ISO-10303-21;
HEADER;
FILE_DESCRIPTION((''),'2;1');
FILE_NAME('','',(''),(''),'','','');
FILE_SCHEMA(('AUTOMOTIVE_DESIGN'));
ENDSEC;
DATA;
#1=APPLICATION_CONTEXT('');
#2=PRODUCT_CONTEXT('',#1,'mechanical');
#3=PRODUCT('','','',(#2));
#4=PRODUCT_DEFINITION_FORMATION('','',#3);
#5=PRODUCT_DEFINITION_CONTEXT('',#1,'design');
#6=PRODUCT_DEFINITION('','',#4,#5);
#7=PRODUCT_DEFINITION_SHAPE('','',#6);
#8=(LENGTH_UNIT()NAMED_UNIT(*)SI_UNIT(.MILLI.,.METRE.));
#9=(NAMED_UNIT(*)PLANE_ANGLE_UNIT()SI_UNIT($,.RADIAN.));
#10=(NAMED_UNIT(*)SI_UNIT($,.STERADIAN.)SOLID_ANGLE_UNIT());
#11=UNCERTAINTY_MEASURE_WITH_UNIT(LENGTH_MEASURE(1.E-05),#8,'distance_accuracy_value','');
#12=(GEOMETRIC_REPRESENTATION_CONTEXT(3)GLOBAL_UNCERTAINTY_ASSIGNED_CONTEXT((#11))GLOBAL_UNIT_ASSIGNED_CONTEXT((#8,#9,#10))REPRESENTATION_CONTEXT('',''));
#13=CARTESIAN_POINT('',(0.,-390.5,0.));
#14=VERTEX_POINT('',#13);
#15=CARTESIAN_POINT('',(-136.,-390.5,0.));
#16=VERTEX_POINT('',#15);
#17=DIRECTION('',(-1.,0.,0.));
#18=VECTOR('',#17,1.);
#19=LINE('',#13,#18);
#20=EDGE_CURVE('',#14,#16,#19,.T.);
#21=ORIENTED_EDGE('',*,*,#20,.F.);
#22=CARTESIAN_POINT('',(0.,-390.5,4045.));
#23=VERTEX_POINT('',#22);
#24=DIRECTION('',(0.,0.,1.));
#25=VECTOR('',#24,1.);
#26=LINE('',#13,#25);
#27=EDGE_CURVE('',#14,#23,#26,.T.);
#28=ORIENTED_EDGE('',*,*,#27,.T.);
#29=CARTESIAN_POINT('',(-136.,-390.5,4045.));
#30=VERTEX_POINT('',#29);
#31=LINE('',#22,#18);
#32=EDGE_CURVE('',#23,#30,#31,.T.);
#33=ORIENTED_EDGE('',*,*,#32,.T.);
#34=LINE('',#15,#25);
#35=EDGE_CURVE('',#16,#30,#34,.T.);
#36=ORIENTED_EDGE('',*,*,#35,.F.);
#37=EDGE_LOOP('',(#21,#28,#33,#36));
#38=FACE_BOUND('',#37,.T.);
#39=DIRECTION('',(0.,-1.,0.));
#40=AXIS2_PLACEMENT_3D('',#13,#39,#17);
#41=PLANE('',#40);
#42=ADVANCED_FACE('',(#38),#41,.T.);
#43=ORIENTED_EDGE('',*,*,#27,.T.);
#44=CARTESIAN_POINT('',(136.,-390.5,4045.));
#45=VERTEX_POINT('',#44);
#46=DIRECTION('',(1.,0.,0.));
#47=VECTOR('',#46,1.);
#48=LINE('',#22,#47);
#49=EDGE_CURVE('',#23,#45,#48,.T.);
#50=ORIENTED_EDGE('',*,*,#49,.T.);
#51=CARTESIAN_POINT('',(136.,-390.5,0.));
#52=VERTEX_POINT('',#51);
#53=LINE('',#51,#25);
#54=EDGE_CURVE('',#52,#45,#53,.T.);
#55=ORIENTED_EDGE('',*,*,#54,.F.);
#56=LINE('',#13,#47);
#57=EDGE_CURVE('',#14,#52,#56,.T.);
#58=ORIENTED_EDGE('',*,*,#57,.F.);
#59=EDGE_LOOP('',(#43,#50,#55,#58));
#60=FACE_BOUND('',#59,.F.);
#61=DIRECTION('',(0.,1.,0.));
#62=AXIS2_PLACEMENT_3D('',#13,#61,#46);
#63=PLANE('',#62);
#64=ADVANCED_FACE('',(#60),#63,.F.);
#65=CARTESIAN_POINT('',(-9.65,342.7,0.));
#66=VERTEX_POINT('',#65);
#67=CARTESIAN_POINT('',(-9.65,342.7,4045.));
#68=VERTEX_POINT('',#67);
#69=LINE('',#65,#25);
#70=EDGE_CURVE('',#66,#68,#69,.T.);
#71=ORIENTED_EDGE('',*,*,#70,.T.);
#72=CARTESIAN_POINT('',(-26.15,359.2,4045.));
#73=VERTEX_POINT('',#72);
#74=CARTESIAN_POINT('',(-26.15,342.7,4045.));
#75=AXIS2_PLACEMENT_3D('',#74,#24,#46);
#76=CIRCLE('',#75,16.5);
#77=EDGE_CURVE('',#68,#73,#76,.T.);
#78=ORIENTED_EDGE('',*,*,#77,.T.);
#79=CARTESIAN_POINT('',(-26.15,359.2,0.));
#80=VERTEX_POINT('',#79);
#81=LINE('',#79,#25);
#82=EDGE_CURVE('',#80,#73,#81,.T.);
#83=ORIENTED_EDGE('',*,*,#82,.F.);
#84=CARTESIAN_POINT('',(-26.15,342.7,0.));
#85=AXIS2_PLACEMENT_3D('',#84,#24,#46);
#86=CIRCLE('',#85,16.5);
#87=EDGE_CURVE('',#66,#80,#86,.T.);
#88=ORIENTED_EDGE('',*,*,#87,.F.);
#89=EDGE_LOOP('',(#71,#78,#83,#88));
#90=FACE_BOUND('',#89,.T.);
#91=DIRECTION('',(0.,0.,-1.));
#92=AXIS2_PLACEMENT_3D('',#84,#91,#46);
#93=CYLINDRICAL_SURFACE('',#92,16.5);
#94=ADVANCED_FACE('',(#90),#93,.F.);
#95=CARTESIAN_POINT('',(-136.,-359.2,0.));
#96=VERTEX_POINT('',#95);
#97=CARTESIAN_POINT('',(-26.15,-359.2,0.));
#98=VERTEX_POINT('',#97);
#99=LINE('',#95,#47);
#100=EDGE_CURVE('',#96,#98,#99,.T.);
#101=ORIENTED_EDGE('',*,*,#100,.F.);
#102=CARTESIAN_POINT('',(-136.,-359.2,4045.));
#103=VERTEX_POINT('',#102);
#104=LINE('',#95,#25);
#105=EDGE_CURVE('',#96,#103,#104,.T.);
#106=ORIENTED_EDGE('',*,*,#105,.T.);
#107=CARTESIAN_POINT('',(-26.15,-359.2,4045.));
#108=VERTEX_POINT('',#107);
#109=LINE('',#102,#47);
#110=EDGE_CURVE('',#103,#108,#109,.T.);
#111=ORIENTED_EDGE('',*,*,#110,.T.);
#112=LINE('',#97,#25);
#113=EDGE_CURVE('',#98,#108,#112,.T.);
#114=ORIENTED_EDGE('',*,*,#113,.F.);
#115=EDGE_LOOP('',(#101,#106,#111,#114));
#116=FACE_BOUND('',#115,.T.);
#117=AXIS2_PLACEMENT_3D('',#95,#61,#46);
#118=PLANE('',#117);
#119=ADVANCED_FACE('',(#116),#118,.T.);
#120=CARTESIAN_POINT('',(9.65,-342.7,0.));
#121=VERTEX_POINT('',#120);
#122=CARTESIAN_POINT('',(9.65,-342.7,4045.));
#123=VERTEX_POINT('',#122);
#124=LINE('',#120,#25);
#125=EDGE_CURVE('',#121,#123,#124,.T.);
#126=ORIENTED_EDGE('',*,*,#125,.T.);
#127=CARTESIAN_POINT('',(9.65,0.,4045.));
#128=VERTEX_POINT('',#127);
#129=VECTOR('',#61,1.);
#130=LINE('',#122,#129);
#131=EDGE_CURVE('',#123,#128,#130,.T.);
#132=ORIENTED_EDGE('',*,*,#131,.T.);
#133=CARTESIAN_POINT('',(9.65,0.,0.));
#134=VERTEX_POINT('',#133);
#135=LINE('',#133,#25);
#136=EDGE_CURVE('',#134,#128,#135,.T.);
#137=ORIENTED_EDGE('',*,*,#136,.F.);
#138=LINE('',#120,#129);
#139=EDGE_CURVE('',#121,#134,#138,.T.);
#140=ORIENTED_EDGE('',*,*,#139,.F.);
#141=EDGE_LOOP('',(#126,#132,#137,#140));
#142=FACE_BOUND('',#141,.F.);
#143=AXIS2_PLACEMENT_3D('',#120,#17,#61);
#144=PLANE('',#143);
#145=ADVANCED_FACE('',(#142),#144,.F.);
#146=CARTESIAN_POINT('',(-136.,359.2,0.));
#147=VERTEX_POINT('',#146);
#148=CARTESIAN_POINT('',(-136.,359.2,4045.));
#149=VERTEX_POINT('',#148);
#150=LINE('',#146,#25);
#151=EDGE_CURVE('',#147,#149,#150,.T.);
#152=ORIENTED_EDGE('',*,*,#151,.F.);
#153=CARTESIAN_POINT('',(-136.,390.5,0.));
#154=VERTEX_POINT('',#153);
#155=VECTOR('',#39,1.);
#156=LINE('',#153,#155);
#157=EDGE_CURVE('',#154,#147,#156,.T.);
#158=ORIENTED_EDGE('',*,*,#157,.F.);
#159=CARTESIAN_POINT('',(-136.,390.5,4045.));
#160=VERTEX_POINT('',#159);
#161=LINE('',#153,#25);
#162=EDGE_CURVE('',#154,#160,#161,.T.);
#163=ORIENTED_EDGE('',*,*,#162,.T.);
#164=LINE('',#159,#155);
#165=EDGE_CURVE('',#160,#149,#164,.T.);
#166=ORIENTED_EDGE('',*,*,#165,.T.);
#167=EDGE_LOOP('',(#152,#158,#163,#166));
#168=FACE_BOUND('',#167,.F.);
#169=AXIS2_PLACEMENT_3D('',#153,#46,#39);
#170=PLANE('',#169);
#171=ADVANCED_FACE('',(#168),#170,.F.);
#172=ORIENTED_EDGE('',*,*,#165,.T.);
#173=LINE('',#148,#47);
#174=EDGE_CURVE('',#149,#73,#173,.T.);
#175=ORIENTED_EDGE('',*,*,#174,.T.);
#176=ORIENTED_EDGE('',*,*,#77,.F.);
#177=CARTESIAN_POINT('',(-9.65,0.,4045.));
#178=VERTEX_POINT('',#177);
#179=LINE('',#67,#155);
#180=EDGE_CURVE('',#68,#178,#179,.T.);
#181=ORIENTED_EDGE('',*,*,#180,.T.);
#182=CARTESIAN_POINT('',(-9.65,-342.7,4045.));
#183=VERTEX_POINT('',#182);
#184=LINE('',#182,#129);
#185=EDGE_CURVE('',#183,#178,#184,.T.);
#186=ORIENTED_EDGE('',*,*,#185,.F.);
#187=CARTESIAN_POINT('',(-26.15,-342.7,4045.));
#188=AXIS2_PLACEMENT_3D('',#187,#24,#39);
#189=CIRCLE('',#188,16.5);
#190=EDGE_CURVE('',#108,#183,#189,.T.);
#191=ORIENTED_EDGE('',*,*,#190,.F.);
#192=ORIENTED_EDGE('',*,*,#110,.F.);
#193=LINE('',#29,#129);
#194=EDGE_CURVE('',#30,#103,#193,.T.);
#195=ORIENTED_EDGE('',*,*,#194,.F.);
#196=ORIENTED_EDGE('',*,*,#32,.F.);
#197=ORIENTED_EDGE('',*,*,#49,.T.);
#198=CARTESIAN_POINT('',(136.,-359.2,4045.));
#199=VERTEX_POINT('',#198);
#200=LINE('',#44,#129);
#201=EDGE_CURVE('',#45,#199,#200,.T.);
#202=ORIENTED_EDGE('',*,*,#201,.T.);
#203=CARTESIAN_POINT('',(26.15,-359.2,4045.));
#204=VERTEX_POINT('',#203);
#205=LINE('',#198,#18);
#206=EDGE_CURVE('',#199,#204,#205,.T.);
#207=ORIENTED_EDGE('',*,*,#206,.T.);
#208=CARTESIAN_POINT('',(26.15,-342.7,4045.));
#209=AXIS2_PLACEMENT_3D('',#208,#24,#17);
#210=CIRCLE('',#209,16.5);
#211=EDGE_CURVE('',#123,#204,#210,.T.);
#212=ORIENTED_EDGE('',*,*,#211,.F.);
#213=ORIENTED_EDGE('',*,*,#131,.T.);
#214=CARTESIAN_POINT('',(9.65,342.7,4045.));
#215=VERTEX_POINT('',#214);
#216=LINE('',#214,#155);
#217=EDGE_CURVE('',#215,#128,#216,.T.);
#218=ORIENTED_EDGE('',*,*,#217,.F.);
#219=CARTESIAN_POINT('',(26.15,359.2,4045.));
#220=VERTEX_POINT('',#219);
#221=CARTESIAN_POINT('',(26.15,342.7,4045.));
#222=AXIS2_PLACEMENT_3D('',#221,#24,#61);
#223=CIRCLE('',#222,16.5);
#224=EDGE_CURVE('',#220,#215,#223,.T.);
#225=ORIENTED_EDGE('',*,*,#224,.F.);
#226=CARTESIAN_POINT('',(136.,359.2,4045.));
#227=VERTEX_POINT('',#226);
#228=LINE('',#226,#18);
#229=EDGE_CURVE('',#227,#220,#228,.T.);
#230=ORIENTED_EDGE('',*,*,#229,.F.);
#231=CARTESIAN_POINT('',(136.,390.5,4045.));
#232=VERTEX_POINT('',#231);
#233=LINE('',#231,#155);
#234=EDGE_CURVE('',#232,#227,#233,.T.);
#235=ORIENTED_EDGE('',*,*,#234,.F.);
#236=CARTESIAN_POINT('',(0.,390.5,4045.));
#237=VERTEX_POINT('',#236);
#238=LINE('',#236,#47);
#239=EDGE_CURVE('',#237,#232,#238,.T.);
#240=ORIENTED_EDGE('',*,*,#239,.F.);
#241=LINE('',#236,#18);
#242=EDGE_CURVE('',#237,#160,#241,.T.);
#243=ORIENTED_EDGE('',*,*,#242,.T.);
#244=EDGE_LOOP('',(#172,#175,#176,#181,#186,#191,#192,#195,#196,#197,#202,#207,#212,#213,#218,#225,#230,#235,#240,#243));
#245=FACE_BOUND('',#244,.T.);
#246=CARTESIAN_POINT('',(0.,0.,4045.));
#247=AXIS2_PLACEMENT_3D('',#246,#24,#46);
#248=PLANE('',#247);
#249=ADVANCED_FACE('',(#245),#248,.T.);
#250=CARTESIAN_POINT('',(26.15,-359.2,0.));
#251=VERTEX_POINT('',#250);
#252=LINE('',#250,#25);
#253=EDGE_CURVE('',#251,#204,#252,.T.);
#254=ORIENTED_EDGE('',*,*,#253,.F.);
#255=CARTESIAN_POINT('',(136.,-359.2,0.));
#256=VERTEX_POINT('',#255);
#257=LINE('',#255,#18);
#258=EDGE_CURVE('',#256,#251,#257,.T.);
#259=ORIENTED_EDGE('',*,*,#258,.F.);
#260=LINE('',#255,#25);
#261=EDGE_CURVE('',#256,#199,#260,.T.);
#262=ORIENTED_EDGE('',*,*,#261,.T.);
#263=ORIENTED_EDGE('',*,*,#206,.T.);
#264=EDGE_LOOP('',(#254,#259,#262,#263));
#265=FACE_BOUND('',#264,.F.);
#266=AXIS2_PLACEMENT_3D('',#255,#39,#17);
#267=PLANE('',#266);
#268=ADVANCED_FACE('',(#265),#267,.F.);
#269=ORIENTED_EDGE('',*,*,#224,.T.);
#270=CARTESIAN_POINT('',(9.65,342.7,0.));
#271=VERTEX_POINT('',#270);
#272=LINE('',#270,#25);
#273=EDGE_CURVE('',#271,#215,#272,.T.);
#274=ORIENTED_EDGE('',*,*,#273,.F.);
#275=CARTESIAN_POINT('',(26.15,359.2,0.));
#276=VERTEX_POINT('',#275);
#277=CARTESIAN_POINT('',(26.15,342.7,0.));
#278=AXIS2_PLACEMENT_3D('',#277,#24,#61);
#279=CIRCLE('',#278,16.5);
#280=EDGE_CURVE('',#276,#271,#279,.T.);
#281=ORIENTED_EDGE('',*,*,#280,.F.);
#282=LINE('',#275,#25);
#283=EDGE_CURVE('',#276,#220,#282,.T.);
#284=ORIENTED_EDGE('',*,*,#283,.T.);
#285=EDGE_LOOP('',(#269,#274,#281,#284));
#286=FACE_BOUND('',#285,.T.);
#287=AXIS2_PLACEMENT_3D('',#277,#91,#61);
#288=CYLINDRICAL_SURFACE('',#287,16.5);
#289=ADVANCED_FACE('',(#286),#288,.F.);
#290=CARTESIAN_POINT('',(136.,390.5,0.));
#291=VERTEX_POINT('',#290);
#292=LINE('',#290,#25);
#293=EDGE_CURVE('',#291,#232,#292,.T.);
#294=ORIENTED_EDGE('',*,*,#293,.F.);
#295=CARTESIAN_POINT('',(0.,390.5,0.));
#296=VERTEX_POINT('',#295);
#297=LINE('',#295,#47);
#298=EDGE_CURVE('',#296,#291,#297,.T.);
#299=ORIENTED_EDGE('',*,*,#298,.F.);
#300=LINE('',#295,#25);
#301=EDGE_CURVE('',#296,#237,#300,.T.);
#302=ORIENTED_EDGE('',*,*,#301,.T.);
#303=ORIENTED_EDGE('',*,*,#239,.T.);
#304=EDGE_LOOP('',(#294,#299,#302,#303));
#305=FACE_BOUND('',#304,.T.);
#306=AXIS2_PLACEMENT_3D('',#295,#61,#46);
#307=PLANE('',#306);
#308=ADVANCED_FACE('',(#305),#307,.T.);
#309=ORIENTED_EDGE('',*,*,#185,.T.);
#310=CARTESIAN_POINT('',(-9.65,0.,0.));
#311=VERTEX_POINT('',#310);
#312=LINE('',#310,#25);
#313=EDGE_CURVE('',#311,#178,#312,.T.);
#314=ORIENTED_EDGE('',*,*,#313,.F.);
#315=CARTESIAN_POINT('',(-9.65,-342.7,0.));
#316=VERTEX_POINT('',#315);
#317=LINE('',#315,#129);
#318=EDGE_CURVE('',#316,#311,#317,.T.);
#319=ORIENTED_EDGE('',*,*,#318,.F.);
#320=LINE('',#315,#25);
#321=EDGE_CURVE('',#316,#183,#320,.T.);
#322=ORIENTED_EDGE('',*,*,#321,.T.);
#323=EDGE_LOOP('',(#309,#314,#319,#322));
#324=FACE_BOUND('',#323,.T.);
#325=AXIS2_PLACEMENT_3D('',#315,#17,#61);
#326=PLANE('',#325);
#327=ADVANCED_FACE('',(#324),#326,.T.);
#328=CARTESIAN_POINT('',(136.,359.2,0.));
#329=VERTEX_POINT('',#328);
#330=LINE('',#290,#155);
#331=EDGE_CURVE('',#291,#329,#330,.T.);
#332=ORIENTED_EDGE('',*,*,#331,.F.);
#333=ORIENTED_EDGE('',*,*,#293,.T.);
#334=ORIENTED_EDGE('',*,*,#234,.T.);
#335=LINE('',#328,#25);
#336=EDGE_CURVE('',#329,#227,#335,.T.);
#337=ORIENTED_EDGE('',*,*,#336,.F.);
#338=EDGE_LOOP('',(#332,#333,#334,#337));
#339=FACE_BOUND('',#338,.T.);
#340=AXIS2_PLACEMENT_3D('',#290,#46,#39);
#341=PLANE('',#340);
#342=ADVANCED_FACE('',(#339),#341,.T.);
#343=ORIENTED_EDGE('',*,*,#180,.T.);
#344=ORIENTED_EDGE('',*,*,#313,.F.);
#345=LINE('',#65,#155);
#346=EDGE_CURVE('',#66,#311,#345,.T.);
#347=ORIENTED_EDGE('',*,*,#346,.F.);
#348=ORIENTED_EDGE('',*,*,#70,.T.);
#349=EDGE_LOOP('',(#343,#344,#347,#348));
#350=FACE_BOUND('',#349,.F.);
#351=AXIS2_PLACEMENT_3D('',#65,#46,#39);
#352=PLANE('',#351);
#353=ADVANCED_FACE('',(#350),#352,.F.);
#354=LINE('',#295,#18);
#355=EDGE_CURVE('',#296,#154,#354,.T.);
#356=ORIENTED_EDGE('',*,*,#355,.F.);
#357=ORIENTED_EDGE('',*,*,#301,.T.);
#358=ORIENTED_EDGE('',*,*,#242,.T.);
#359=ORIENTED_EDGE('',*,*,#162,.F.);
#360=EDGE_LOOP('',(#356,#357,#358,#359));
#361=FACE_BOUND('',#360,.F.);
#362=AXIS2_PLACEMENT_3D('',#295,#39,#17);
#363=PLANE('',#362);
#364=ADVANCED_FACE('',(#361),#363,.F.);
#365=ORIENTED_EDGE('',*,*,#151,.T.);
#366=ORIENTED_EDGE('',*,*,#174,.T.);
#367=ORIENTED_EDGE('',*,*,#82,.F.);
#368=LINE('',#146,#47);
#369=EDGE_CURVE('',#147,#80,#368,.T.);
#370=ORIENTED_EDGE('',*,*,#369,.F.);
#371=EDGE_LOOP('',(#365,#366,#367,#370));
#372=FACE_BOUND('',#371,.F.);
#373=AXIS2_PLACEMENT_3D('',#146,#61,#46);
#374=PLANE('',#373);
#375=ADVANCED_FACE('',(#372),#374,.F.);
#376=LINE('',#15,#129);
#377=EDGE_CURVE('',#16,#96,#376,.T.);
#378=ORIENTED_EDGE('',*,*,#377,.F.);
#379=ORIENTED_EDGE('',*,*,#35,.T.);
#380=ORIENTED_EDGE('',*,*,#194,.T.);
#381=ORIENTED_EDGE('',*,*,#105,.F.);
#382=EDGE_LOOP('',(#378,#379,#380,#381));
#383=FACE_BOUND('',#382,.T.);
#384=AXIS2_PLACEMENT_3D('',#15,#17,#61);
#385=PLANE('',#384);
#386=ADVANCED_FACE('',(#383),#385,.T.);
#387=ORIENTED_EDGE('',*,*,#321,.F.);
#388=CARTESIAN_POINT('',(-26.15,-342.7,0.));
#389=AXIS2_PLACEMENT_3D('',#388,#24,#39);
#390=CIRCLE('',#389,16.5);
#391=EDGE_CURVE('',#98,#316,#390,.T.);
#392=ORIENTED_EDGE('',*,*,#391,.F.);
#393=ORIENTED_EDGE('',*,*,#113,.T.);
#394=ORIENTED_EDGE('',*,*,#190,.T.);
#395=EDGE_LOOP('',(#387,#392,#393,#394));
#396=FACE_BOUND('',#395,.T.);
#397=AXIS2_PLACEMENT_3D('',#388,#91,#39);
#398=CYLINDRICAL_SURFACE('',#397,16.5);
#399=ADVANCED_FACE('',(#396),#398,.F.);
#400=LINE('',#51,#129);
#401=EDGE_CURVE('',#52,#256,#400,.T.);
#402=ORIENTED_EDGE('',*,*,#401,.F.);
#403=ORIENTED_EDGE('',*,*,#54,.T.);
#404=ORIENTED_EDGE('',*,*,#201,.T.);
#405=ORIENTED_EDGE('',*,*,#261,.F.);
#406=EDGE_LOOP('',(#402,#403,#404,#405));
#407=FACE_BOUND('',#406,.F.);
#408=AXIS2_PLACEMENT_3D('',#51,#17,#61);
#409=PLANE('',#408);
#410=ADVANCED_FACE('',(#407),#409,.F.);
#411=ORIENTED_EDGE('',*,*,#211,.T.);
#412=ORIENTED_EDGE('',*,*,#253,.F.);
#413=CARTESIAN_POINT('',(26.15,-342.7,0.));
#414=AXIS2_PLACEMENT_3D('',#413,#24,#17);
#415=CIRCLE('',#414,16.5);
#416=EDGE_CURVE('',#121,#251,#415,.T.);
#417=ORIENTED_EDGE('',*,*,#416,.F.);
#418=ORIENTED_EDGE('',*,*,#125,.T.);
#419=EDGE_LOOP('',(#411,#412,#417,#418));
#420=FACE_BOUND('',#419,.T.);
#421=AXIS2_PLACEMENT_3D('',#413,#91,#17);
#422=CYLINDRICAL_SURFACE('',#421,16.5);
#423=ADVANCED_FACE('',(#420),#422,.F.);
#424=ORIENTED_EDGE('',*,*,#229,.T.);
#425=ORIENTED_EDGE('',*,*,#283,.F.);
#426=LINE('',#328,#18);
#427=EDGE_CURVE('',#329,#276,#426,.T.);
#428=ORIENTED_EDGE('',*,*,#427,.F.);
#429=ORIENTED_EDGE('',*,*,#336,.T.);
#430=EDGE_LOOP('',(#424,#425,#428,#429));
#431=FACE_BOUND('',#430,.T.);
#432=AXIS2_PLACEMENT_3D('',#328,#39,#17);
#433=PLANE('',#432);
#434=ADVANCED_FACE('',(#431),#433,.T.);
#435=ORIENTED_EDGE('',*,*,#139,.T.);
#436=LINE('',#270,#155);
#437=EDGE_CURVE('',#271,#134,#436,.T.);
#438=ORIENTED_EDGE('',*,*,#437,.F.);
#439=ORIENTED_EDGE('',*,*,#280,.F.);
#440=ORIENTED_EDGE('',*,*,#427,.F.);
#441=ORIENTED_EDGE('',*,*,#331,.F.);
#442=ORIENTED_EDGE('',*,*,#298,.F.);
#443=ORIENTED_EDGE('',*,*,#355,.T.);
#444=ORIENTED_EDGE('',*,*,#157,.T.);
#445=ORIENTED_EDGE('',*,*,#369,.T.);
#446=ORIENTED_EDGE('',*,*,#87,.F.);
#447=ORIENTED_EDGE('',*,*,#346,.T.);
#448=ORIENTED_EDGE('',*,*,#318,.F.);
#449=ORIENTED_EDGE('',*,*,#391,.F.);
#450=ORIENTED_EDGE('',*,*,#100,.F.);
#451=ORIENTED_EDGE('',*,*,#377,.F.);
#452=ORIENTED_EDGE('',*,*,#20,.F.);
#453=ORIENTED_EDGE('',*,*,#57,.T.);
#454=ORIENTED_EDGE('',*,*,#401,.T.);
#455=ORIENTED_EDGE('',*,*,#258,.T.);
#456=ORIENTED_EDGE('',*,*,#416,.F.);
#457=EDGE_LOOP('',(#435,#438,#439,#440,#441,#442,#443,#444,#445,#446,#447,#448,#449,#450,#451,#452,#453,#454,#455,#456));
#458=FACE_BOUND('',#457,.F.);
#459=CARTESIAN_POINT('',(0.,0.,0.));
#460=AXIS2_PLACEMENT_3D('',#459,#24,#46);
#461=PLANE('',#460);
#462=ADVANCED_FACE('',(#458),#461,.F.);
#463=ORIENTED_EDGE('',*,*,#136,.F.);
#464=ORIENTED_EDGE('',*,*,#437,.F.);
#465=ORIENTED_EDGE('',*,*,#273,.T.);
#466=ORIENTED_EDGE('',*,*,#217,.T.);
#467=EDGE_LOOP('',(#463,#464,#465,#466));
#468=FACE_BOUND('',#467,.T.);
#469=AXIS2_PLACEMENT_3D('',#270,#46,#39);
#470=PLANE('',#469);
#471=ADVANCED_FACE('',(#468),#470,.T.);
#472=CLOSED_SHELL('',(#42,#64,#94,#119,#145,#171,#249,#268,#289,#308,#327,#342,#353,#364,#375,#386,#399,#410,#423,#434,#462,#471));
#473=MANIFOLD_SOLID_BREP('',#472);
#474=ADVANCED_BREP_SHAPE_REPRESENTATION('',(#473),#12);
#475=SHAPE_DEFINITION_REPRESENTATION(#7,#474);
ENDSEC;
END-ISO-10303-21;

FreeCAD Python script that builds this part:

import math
import FreeCAD as App
import Part
import Sketcher
Q = App.Units.Quantity

doc = App.newDocument("Part")
body = doc.addObject("PartDesign::Body", "Body")

sketch1 = body.newObject("Sketcher::SketchObject", "Sketch")
sketch1.AttachmentSupport = (doc.getObject("XY_Plane"), [""])
sketch1.MapMode = "FlatFace"
sketch1.addGeometry(Part.LineSegment(App.Vector(-136, -359, 0), App.Vector(-136, -390, 0)), False)
sketch1.addGeometry(Part.LineSegment(App.Vector(-136, -390, 0), App.Vector(136, -390, 0)), False)
sketch1.addGeometry(Part.LineSegment(App.Vector(136, -390, 0), App.Vector(136, -359, 0)), False)
sketch1.addGeometry(Part.LineSegment(App.Vector(136, -359, 0), App.Vector(26, -359, 0)), False)
sketch1.addGeometry(Part.ArcOfCircle(Part.Circle(App.Vector(26, -343, 0), App.Vector(0, 0, 1), 16), math.radians(180), math.radians(270)), False)
sketch1.addGeometry(Part.LineSegment(App.Vector(10, -343, 0), App.Vector(10, 343, 0)), False)
sketch1.addGeometry(Part.ArcOfCircle(Part.Circle(App.Vector(26, 343, 0), App.Vector(0, 0, 1), 16), math.radians(90), math.radians(180)), False)
sketch1.addGeometry(Part.LineSegment(App.Vector(26, 359, 0), App.Vector(136, 359, 0)), False)
sketch1.addGeometry(Part.LineSegment(App.Vector(136, 359, 0), App.Vector(136, 390, 0)), False)
sketch1.addGeometry(Part.LineSegment(App.Vector(136, 390, 0), App.Vector(-136, 390, 0)), False)
sketch1.addGeometry(Part.LineSegment(App.Vector(-136, 390, 0), App.Vector(-136, 359, 0)), False)
sketch1.addGeometry(Part.LineSegment(App.Vector(-136, 359, 0), App.Vector(-26, 359, 0)), False)
sketch1.addGeometry(Part.ArcOfCircle(Part.Circle(App.Vector(-26, 343, 0), App.Vector(0, 0, 1), 16), math.radians(0), math.radians(90)), False)
sketch1.addGeometry(Part.LineSegment(App.Vector(-10, 343, 0), App.Vector(-10, -343, 0)), False)
sketch1.addGeometry(Part.ArcOfCircle(Part.Circle(App.Vector(-26, -343, 0), App.Vector(0, 0, 1), 16), math.radians(-90), math.radians(0)), False)
sketch1.addGeometry(Part.LineSegment(App.Vector(-26, -359, 0), App.Vector(-136, -359, 0)), False)
sketch1.addConstraint(Sketcher.Constraint("Coincident", 0, 2, 1, 1))
sketch1.addConstraint(Sketcher.Constraint("Coincident", 1, 2, 2, 1))
sketch1.addConstraint(Sketcher.Constraint("Coincident", 2, 2, 3, 1))
sketch1.addConstraint(Sketcher.Constraint("Tangent", 3, 2, 4, 2))
sketch1.addConstraint(Sketcher.Constraint("Tangent", 4, 1, 5, 1))
sketch1.addConstraint(Sketcher.Constraint("Tangent", 5, 2, 6, 2))
sketch1.addConstraint(Sketcher.Constraint("Tangent", 6, 1, 7, 1))
sketch1.addConstraint(Sketcher.Constraint("Coincident", 7, 2, 8, 1))
sketch1.addConstraint(Sketcher.Constraint("Coincident", 8, 2, 9, 1))
sketch1.addConstraint(Sketcher.Constraint("Coincident", 9, 2, 10, 1))
sketch1.addConstraint(Sketcher.Constraint("Coincident", 10, 2, 11, 1))
sketch1.addConstraint(Sketcher.Constraint("Tangent", 11, 2, 12, 2))
sketch1.addConstraint(Sketcher.Constraint("Tangent", 12, 1, 13, 1))
sketch1.addConstraint(Sketcher.Constraint("Tangent", 13, 2, 14, 2))
sketch1.addConstraint(Sketcher.Constraint("Tangent", 14, 1, 15, 1))
sketch1.addConstraint(Sketcher.Constraint("Coincident", 15, 2, 0, 1))
sketch1.addConstraint(Sketcher.Constraint("Vertical", 0))
sketch1.addConstraint(Sketcher.Constraint("Horizontal", 1))
sketch1.addConstraint(Sketcher.Constraint("Vertical", 2))
sketch1.addConstraint(Sketcher.Constraint("Horizontal", 3))
sketch1.addConstraint(Sketcher.Constraint("Vertical", 5))
sketch1.addConstraint(Sketcher.Constraint("Horizontal", 7))
sketch1.addConstraint(Sketcher.Constraint("Vertical", 8))
sketch1.addConstraint(Sketcher.Constraint("Horizontal", 9))
sketch1.addConstraint(Sketcher.Constraint("Vertical", 10))
sketch1.addConstraint(Sketcher.Constraint("Horizontal", 11))
sketch1.addConstraint(Sketcher.Constraint("Vertical", 13))
sketch1.addConstraint(Sketcher.Constraint("Horizontal", 15))
sketch1.addConstraint(Sketcher.Constraint("Equal", 4, 6))
sketch1.addConstraint(Sketcher.Constraint("Equal", 6, 12))
sketch1.addConstraint(Sketcher.Constraint("Equal", 12, 14))
sketch1.addConstraint(Sketcher.Constraint("Symmetric", 4, 3, 12, 3, -1, 1))
sketch1.addConstraint(Sketcher.Constraint("Symmetric", 0, 2, 8, 2, -1, 1))
sketch1.addConstraint(Sketcher.Constraint("Symmetric", 7, 2, 10, 2, -2))
sketch1.addConstraint(Sketcher.Constraint("Symmetric", 2, 2, 15, 2, -2))
sketch1.addConstraint(Sketcher.Constraint("Radius", 4, Q("16.5 mm")))
sketch1.addConstraint(Sketcher.Constraint("DistanceY", 0, 2, 0, 1, Q("31.3 mm")))
sketch1.addConstraint(Sketcher.Constraint("DistanceX", 0, 2, -1, 1, Q("136 mm")))
sketch1.addConstraint(Sketcher.Constraint("DistanceY", 0, 2, -1, 1, Q("390.5 mm")))
sketch1.addConstraint(Sketcher.Constraint("DistanceX", -1, 1, 4, 1, Q("9.65 mm")))
pad1 = body.newObject("PartDesign::Pad", "Pad")
pad1.Profile = sketch1
pad1.Length = 4045

doc.recompute()
